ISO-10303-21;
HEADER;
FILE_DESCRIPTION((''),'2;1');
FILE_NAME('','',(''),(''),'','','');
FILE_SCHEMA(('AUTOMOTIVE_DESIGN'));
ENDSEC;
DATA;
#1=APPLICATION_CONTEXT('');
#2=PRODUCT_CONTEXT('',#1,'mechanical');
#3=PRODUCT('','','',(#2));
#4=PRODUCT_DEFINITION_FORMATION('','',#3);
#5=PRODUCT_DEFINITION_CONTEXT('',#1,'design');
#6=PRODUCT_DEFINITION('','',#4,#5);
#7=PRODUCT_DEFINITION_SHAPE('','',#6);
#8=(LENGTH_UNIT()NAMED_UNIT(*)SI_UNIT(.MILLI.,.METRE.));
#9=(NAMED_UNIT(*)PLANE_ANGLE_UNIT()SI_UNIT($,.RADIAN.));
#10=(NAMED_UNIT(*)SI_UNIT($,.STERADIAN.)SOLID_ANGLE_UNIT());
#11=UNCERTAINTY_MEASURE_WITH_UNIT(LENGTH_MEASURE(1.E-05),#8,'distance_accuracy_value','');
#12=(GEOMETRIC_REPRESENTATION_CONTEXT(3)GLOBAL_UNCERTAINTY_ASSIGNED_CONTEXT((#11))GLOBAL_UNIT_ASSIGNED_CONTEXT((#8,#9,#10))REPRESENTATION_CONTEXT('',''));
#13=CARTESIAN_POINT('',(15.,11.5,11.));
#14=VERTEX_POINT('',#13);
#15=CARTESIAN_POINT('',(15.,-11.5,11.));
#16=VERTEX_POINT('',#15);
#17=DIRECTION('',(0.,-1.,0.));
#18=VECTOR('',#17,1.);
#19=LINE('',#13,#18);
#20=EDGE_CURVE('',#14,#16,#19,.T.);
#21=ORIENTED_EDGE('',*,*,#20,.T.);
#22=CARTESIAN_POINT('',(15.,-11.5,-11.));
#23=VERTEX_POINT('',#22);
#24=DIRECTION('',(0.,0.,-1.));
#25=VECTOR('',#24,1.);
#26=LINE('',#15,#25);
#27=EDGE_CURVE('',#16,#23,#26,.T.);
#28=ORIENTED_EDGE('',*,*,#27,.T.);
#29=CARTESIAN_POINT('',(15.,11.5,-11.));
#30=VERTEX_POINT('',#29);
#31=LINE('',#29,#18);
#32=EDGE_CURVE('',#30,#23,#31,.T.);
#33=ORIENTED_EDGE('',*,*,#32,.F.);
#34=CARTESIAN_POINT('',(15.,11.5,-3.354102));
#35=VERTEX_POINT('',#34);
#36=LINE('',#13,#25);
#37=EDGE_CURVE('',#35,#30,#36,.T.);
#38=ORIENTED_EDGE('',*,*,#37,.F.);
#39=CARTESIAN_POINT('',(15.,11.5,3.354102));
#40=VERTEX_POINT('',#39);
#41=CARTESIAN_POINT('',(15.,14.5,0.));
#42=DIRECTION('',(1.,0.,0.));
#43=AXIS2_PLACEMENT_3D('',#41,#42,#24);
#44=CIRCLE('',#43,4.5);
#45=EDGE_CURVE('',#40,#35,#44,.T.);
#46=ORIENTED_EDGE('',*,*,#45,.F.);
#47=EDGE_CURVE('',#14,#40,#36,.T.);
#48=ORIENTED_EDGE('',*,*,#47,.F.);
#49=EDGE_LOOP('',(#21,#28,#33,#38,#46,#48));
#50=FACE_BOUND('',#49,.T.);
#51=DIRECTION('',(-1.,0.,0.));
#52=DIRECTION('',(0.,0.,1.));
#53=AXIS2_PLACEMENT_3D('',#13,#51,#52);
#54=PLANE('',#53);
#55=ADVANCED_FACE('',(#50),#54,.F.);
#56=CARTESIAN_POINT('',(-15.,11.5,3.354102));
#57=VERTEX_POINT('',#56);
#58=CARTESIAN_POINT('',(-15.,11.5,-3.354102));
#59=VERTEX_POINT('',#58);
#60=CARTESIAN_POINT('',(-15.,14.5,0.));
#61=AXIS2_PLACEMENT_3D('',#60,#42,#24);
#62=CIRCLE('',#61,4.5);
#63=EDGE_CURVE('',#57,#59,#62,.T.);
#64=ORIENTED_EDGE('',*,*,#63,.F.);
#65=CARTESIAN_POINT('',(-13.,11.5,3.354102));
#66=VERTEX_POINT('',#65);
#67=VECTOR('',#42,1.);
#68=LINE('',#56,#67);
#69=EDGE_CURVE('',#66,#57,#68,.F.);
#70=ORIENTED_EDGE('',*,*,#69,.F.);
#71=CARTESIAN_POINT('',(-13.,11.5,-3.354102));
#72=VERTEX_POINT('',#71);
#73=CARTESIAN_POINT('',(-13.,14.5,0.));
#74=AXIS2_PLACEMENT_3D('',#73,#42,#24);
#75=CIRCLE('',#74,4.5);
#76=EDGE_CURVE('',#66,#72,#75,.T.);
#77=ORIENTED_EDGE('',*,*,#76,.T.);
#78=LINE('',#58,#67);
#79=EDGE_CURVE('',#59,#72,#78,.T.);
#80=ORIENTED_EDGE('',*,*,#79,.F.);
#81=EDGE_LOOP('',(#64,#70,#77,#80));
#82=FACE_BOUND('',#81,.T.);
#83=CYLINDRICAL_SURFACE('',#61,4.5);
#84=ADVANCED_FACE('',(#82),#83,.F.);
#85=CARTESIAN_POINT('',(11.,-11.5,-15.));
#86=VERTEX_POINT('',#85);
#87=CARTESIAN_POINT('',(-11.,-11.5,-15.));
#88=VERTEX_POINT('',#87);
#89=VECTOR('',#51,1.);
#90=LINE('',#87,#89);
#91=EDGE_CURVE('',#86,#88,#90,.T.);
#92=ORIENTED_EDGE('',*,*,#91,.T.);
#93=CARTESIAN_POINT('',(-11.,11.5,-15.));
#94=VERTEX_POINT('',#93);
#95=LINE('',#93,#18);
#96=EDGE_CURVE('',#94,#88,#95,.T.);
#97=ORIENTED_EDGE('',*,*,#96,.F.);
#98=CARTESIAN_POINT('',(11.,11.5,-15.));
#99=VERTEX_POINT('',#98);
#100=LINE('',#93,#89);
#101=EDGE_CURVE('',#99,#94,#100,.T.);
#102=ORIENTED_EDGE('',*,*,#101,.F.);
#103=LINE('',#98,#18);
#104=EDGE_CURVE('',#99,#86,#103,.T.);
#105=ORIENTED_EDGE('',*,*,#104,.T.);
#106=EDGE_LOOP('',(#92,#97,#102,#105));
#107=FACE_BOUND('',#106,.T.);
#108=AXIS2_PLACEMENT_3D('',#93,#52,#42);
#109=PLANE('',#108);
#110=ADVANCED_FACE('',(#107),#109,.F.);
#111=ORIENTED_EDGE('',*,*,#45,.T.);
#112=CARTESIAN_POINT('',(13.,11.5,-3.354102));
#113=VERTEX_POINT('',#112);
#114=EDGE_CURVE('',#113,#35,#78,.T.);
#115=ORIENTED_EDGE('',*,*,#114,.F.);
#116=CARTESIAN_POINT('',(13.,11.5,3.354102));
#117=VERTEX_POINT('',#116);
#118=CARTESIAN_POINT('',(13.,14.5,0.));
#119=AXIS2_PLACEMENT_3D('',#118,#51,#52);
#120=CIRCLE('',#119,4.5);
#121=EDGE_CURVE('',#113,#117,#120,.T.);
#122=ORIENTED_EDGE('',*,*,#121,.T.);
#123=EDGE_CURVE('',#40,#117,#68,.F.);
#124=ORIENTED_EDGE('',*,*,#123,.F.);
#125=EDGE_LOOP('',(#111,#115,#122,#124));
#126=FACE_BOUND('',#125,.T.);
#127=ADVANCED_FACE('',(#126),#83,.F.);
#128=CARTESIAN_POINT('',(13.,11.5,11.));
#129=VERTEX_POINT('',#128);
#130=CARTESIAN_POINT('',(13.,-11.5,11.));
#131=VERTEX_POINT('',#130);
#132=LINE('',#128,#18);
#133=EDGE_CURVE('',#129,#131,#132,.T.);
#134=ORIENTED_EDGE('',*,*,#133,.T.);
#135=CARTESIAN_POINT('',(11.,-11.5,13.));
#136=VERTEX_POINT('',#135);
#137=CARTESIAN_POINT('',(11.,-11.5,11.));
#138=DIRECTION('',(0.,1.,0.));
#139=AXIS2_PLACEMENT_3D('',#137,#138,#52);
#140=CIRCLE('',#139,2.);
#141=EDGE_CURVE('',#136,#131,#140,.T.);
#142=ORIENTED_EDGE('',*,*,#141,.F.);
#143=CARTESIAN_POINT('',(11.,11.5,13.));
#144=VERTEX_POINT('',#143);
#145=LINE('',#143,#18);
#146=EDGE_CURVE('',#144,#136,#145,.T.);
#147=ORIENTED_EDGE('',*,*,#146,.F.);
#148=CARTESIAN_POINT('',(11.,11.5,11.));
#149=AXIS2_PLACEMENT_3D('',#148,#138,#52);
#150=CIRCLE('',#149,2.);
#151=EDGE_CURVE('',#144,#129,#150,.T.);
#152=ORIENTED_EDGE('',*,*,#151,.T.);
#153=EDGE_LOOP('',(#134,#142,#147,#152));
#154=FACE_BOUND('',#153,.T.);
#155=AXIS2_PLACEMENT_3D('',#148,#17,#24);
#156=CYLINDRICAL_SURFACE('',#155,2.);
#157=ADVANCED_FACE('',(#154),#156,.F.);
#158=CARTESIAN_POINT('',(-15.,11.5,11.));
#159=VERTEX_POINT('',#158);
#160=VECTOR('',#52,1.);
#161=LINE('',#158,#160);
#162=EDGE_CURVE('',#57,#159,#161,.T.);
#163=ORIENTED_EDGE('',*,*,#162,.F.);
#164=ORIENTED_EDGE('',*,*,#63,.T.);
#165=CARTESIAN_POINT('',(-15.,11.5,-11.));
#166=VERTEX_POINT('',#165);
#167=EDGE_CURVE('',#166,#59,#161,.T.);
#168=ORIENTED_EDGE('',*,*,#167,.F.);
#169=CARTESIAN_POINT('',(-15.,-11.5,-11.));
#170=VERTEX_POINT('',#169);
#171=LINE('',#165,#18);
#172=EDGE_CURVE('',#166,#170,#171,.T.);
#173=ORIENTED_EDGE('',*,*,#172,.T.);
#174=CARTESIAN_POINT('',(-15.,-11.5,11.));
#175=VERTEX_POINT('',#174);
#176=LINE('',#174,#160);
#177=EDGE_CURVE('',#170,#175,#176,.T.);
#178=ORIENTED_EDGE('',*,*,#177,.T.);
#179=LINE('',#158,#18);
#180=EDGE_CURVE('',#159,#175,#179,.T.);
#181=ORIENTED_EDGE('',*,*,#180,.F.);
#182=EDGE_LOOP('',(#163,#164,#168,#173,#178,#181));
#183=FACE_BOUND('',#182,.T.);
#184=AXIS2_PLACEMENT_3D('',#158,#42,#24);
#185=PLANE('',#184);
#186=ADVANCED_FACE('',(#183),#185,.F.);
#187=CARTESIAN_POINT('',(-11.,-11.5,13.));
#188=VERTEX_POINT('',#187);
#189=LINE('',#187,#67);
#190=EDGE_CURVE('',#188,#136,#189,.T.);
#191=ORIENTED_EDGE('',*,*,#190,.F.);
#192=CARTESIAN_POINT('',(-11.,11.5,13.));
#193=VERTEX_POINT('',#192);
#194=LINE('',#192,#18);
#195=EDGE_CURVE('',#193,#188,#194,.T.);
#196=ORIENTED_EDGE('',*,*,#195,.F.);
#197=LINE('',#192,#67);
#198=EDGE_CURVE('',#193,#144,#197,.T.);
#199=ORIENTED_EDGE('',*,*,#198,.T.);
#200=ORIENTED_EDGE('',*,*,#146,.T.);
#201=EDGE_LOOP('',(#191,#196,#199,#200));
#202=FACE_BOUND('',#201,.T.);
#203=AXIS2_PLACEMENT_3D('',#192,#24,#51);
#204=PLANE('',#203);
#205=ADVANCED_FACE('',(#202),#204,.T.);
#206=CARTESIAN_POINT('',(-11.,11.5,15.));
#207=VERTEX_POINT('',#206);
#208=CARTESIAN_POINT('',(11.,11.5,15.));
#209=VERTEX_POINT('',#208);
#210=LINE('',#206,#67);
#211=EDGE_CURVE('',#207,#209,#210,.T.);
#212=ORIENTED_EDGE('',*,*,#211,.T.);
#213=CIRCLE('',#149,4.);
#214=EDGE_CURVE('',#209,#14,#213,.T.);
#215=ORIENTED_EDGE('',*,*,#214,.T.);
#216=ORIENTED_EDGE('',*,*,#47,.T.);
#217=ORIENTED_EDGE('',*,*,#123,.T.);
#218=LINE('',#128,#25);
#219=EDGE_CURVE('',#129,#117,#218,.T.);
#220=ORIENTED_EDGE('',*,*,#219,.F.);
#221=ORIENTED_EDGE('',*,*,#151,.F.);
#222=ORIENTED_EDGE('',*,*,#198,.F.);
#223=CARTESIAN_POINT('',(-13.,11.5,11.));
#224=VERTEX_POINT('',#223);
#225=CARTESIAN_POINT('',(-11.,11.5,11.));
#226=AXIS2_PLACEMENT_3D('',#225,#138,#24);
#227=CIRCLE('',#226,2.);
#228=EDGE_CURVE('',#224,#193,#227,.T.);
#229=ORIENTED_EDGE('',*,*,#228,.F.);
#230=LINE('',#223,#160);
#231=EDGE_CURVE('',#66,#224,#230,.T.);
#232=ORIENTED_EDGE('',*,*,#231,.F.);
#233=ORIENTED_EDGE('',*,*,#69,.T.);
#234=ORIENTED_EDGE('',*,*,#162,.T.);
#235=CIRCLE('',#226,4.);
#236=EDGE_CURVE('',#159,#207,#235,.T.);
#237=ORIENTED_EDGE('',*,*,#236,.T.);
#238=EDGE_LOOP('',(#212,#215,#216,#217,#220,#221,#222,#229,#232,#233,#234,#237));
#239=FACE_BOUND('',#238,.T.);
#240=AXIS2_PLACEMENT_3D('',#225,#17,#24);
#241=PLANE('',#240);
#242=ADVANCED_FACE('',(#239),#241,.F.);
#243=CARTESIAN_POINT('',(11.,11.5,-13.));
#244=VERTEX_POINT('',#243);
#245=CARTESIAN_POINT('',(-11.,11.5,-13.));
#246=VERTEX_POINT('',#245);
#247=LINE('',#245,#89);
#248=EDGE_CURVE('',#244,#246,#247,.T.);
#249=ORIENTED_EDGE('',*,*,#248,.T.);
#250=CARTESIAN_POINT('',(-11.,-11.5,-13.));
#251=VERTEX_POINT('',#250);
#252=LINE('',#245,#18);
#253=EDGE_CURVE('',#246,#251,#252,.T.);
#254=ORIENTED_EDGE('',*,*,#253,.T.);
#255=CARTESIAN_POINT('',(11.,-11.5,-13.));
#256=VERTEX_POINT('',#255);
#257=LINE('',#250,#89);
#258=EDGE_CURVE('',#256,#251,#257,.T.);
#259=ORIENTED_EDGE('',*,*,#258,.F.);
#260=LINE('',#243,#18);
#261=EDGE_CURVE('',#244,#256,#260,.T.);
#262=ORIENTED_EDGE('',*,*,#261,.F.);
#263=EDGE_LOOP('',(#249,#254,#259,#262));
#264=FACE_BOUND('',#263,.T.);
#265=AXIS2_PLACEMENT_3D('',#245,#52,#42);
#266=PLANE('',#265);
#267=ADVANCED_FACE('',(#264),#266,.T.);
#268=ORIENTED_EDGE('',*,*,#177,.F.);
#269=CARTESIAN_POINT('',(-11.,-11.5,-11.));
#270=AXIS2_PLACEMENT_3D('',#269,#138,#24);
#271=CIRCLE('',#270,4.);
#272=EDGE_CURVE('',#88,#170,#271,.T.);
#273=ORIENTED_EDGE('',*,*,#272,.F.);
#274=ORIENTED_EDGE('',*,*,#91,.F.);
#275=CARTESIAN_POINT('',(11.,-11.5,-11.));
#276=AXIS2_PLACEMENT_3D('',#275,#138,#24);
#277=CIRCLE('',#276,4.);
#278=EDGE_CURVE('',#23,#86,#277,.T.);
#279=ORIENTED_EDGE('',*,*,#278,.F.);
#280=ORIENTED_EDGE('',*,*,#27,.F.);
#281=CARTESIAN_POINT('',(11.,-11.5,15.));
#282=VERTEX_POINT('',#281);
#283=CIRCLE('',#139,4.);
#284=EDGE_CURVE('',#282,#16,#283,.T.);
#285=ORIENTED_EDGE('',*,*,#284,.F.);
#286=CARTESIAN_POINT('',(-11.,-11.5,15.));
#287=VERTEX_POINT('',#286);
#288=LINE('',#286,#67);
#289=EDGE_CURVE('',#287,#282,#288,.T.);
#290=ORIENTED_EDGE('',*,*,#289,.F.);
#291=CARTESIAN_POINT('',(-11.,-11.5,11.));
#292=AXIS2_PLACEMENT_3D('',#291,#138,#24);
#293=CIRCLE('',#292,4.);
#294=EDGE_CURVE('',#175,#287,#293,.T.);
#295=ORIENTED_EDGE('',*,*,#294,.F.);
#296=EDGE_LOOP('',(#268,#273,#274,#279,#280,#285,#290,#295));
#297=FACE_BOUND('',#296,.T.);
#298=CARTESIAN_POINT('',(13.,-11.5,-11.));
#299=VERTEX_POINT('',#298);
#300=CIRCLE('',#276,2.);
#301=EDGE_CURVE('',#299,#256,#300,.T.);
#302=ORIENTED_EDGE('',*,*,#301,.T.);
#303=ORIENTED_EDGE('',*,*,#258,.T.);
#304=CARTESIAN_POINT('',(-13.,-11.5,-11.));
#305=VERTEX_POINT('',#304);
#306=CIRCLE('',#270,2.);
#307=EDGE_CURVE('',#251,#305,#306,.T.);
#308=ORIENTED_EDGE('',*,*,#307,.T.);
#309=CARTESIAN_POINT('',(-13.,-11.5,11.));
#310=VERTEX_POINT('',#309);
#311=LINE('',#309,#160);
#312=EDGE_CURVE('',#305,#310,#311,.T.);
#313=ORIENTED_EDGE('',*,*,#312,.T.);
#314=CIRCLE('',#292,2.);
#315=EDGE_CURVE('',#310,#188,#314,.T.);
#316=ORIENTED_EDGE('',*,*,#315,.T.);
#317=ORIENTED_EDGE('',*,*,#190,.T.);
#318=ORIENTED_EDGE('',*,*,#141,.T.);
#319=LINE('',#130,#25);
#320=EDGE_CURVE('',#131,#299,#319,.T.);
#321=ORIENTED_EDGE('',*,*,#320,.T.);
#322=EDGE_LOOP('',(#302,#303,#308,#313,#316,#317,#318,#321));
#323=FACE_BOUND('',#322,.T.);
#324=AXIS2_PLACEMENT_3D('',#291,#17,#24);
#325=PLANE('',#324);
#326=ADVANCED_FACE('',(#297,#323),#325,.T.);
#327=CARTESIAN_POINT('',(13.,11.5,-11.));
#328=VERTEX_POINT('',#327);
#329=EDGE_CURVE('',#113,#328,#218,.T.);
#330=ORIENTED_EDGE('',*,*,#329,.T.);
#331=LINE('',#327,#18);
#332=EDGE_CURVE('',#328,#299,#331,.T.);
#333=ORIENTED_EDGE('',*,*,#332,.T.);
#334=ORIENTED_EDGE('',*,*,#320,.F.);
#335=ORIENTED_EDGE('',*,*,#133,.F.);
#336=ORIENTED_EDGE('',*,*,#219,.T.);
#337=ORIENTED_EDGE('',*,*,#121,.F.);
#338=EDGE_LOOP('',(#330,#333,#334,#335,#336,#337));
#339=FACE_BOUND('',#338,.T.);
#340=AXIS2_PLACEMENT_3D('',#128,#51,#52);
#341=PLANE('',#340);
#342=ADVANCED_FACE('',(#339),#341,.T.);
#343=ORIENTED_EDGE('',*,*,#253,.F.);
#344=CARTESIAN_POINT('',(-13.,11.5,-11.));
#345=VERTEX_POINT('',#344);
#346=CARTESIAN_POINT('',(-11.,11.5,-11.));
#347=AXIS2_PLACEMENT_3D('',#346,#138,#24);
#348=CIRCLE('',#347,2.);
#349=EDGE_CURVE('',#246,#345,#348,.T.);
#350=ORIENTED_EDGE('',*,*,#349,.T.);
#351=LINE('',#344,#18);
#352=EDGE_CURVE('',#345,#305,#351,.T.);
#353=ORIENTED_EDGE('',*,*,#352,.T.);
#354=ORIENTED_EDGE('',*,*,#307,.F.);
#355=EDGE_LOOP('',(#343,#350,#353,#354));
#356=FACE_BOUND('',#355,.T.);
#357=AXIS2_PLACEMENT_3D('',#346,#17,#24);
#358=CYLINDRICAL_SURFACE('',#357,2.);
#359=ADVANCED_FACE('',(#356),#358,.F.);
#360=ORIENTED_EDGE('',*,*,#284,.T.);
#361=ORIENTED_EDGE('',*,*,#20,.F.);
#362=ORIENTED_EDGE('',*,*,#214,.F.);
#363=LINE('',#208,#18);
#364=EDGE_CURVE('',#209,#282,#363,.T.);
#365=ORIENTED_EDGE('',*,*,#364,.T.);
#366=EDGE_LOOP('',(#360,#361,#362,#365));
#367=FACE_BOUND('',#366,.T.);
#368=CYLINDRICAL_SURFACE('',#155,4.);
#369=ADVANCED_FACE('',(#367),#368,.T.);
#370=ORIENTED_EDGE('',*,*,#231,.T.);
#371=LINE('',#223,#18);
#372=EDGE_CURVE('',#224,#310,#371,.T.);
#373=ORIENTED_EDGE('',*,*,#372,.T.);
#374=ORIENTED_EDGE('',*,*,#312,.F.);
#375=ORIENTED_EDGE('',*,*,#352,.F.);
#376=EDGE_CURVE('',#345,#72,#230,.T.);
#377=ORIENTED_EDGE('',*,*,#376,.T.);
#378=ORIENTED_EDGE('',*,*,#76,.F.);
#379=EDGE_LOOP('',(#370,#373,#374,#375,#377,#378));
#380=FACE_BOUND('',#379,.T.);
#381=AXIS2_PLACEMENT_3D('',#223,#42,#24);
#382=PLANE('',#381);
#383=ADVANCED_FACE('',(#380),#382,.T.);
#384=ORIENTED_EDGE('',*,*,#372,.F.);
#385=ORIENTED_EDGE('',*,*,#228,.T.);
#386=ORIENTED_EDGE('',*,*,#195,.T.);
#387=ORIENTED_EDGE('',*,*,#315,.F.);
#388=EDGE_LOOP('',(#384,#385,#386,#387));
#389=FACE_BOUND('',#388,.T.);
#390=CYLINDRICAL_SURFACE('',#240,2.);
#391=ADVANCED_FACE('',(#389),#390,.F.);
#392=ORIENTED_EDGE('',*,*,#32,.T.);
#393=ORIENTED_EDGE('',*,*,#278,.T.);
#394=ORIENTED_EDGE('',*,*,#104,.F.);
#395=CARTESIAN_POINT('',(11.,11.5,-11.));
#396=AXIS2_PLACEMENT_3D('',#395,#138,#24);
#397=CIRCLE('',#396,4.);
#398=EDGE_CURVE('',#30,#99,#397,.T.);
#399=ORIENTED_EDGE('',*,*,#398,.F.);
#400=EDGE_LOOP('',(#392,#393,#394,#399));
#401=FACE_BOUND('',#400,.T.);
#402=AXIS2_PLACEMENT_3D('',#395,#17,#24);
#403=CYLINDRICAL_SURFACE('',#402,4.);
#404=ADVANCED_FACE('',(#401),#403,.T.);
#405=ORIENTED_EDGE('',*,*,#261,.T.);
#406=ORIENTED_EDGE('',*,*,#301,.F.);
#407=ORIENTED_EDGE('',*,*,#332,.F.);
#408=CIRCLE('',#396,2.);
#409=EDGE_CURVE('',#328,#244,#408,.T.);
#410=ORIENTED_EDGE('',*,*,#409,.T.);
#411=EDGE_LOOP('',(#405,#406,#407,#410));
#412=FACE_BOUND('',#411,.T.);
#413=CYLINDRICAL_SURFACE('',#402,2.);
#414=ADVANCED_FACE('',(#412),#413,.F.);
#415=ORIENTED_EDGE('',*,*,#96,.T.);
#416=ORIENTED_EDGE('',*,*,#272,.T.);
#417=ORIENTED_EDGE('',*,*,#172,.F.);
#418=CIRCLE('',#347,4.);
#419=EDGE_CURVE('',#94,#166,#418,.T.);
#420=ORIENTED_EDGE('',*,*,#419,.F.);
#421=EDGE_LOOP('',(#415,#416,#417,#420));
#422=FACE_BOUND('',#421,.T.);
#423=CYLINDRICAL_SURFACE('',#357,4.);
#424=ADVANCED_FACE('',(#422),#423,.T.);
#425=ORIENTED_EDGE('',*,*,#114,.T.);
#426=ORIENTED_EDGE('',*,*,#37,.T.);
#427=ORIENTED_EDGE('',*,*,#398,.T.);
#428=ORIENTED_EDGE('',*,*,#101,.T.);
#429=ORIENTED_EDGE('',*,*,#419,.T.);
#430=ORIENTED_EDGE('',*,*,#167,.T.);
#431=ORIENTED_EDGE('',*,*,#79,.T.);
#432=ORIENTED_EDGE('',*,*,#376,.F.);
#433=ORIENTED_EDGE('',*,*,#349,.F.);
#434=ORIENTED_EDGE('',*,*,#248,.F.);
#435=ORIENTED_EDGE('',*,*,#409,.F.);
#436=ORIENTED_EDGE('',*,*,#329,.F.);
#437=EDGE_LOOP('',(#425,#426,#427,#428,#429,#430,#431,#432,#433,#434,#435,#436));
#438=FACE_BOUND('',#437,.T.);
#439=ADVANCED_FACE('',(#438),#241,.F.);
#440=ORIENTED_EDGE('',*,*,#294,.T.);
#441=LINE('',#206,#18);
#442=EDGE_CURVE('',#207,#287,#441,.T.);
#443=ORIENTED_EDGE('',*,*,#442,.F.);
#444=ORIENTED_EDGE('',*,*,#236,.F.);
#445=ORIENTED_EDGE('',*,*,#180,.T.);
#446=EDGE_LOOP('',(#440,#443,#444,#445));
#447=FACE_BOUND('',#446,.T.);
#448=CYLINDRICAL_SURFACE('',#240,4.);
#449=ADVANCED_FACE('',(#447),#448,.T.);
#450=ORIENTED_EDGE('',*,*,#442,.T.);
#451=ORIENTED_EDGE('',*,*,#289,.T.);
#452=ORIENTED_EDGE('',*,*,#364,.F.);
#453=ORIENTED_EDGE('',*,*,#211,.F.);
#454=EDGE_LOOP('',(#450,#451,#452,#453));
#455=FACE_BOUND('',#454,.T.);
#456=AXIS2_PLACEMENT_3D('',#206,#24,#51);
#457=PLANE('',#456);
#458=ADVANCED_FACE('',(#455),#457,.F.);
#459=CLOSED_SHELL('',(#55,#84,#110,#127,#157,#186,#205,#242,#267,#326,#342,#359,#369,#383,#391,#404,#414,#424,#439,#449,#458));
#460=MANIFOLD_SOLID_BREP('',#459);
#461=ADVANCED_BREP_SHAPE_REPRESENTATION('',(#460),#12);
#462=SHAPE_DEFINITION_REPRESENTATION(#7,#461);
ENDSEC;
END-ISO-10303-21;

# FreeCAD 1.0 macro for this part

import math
import FreeCAD as App
import Part
import Sketcher

V = App.Vector

doc = App.newDocument("Part")
body = doc.addObject("PartDesign::Body", "Body")

# Sketch on XZ plane
sketch1 = doc.addObject("Sketcher::SketchObject", "Sketch")
body.addObject(sketch1)
sketch1.AttachmentSupport = (doc.XZ_Plane, [""])
sketch1.MapMode = "FlatFace"
sketch1.addGeometry([
    Part.LineSegment(V(-11, 15, 0), V(11, 15, 0)),  # 0
    Part.ArcOfCircle(Part.Circle(V(11, 11, 0), V(0, 0, 1), 4), math.radians(0), math.radians(90)),  # 1
    Part.LineSegment(V(15, 11, 0), V(15, -11, 0)),  # 2
    Part.ArcOfCircle(Part.Circle(V(11, -11, 0), V(0, 0, 1), 4), math.radians(-90), math.radians(0)),  # 3
    Part.LineSegment(V(11, -15, 0), V(-11, -15, 0)),  # 4
    Part.ArcOfCircle(Part.Circle(V(-11, -11, 0), V(0, 0, 1), 4), math.radians(180), math.radians(270)),  # 5
    Part.LineSegment(V(-15, -11, 0), V(-15, 11, 0)),  # 6
    Part.ArcOfCircle(Part.Circle(V(-11, 11, 0), V(0, 0, 1), 4), math.radians(90), math.radians(180)),  # 7
    Part.LineSegment(V(11, 13, 0), V(-11, 13, 0)),  # 8
    Part.ArcOfCircle(Part.Circle(V(-11, 11, 0), V(0, 0, 1), 2), math.radians(90), math.radians(180)),  # 9
    Part.LineSegment(V(-13, 11, 0), V(-13, -11, 0)),  # 10
    Part.ArcOfCircle(Part.Circle(V(-11, -11, 0), V(0, 0, 1), 2), math.radians(-180), math.radians(-90)),  # 11
    Part.LineSegment(V(-11, -13, 0), V(11, -13, 0)),  # 12
    Part.ArcOfCircle(Part.Circle(V(11, -11, 0), V(0, 0, 1), 2), math.radians(-90), math.radians(0)),  # 13
    Part.LineSegment(V(13, -11, 0), V(13, 11, 0)),  # 14
    Part.ArcOfCircle(Part.Circle(V(11, 11, 0), V(0, 0, 1), 2), math.radians(0), math.radians(90)),  # 15
], False)
sketch1.addConstraint([
    Sketcher.Constraint("Tangent", 0, 2, 1, 2),
    Sketcher.Constraint("Tangent", 1, 1, 2, 1),
    Sketcher.Constraint("Tangent", 2, 2, 3, 2),
    Sketcher.Constraint("Tangent", 3, 1, 4, 1),
    Sketcher.Constraint("Tangent", 4, 2, 5, 2),
    Sketcher.Constraint("Tangent", 5, 1, 6, 1),
    Sketcher.Constraint("Tangent", 6, 2, 7, 2),
    Sketcher.Constraint("Tangent", 7, 1, 0, 1),
    Sketcher.Constraint("Tangent", 8, 2, 9, 1),
    Sketcher.Constraint("Tangent", 9, 2, 10, 1),
    Sketcher.Constraint("Tangent", 10, 2, 11, 1),
    Sketcher.Constraint("Tangent", 11, 2, 12, 1),
    Sketcher.Constraint("Tangent", 12, 2, 13, 1),
    Sketcher.Constraint("Tangent", 13, 2, 14, 1),
    Sketcher.Constraint("Tangent", 14, 2, 15, 1),
    Sketcher.Constraint("Tangent", 15, 2, 8, 1),
    Sketcher.Constraint("Horizontal", 0),
    Sketcher.Constraint("Vertical", 2),
    Sketcher.Constraint("Horizontal", 4),
    Sketcher.Constraint("Vertical", 6),
    Sketcher.Constraint("Horizontal", 8),
    Sketcher.Constraint("Vertical", 10),
    Sketcher.Constraint("Horizontal", 12),
    Sketcher.Constraint("Vertical", 14),
    Sketcher.Constraint("Coincident", 9, 3, 7, 3),
    Sketcher.Constraint("Coincident", 11, 3, 5, 3),
    Sketcher.Constraint("Coincident", 13, 3, 3, 3),
    Sketcher.Constraint("Equal", 1, 3),
    Sketcher.Constraint("Equal", 3, 5),
    Sketcher.Constraint("Equal", 5, 7),
    Sketcher.Constraint("Equal", 13, 15),
    Sketcher.Constraint("Symmetric", 1, 3, 5, 3, -1, 1),
    Sketcher.Constraint("Equal", 12, 2),
    Sketcher.Constraint("Radius", 1, 4.0),
    Sketcher.Constraint("Radius", 9, 2.0),
    Sketcher.Constraint("DistanceX", 0, 1, 0, 2, 22.0),
])
pad1 = doc.addObject("PartDesign::Pad", "Pad")
body.addObject(pad1)
pad1.Profile = sketch1
pad1.Length = 23
pad1.Midplane = True

# Sketch on YZ plane
sketch2 = doc.addObject("Sketcher::SketchObject", "Sketch001")
body.addObject(sketch2)
sketch2.AttachmentSupport = (doc.YZ_Plane, [""])
sketch2.MapMode = "FlatFace"
sketch2.addGeometry(Part.Circle(V(14.5, 0, 0), V(0, 0, 1), 4.5), False)
sketch2.addConstraint([
    Sketcher.Constraint("PointOnObject", 0, 3, -1),
    Sketcher.Constraint("Diameter", 0, 9.0),
    Sketcher.Constraint("DistanceX", -1, 1, 0, 3, 14.5),
])
pocket1 = doc.addObject("PartDesign::Pocket", "Pocket")
body.addObject(pocket1)
pocket1.Profile = sketch2
pocket1.Type = "ThroughAll"
pocket1.Midplane = True

doc.recompute()
